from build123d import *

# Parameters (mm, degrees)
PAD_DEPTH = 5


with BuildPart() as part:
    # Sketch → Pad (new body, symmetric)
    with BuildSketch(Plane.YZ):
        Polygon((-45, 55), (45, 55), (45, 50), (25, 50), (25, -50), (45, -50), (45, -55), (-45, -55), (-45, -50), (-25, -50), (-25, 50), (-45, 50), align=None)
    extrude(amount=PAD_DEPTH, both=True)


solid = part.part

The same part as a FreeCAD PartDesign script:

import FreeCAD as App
import Part
import Sketcher

V = App.Vector

doc = App.newDocument("Part")
params = doc.addObject("Spreadsheet::Sheet", "Params")
for row, (alias, value) in enumerate([
    ("sketch1_width", "90 mm"),
    ("sketch1_width2", "20 mm"),
    ("sketch1_height", "5 mm"),
    ("sketch1_height2", "100 mm"),
    ("pad1_length", "10 mm"),
], start=1):
    params.set(f"A{row}", alias)
    params.set(f"B{row}", "=" + value)
    params.setAlias(f"B{row}", alias)

body = doc.addObject("PartDesign::Body", "Body")

# Sketch on YZ plane
sketch1 = body.newObject("Sketcher::SketchObject", "Sketch")
sketch1.AttachmentSupport = (doc.getObject("YZ_Plane"), [""])
sketch1.MapMode = "FlatFace"
sketch1.addGeometry([
    Part.LineSegment(V(45, 55, 0), V(-45, 55, 0)),  # 0
    Part.LineSegment(V(-45, 55, 0), V(-45, 50, 0)),  # 1
    Part.LineSegment(V(-45, 50, 0), V(-25, 50, 0)),  # 2
    Part.LineSegment(V(-25, 50, 0), V(-25, -50, 0)),  # 3
    Part.LineSegment(V(-25, -50, 0), V(-45, -50, 0)),  # 4
    Part.LineSegment(V(-45, -50, 0), V(-45, -55, 0)),  # 5
    Part.LineSegment(V(-45, -55, 0), V(45, -55, 0)),  # 6
    Part.LineSegment(V(45, -55, 0), V(45, -50, 0)),  # 7
    Part.LineSegment(V(45, -50, 0), V(25, -50, 0)),  # 8
    Part.LineSegment(V(25, -50, 0), V(25, 50, 0)),  # 9
    Part.LineSegment(V(25, 50, 0), V(45, 50, 0)),  # 10
    Part.LineSegment(V(45, 50, 0), V(45, 55, 0)),  # 11
], False)
sketch1.addConstraint([
    Sketcher.Constraint("Coincident", 0, 2, 1, 1),
    Sketcher.Constraint("Coincident", 1, 2, 2, 1),
    Sketcher.Constraint("Coincident", 2, 2, 3, 1),
    Sketcher.Constraint("Coincident", 3, 2, 4, 1),
    Sketcher.Constraint("Coincident", 4, 2, 5, 1),
    Sketcher.Constraint("Coincident", 5, 2, 6, 1),
    Sketcher.Constraint("Coincident", 6, 2, 7, 1),
    Sketcher.Constraint("Coincident", 7, 2, 8, 1),
    Sketcher.Constraint("Coincident", 8, 2, 9, 1),
    Sketcher.Constraint("Coincident", 9, 2, 10, 1),
    Sketcher.Constraint("Coincident", 10, 2, 11, 1),
    Sketcher.Constraint("Coincident", 11, 2, 0, 1),
    Sketcher.Constraint("Horizontal", 0),
    Sketcher.Constraint("Vertical", 1),
    Sketcher.Constraint("Horizontal", 2),
    Sketcher.Constraint("Vertical", 3),
    Sketcher.Constraint("Horizontal", 4),
    Sketcher.Constraint("Vertical", 5),
    Sketcher.Constraint("Horizontal", 6),
    Sketcher.Constraint("Vertical", 7),
    Sketcher.Constraint("Horizontal", 8),
    Sketcher.Constraint("Vertical", 9),
    Sketcher.Constraint("Horizontal", 10),
    Sketcher.Constraint("Vertical", 11),
    Sketcher.Constraint("Symmetric", 0, 2, 6, 2, -1, 1),
    Sketcher.Constraint("Symmetric", 2, 2, 8, 2, -1, 1),
    Sketcher.Constraint("Symmetric", 4, 2, 10, 2, -1, 1),
    Sketcher.Constraint("Symmetric", 4, 2, 7, 2, -2),
    Sketcher.Constraint("DistanceX", 0, 2, 0, 1, 90.0),
    Sketcher.Constraint("DistanceX", 2, 1, 2, 2, 20.0),
    Sketcher.Constraint("DistanceY", 1, 2, 1, 1, 5.0),
    Sketcher.Constraint("DistanceY", 3, 2, 3, 1, 100.0),
])
sketch1.setExpression("Constraints[28]", "Params.sketch1_width")
sketch1.setExpression("Constraints[29]", "Params.sketch1_width2")
sketch1.setExpression("Constraints[30]", "Params.sketch1_height")
sketch1.setExpression("Constraints[31]", "Params.sketch1_height2")
pad1 = body.newObject("PartDesign::Pad", "Pad")
pad1.Profile = sketch1
pad1.setExpression("Length", "Params.pad1_length")
pad1.Midplane = True

doc.recompute()
